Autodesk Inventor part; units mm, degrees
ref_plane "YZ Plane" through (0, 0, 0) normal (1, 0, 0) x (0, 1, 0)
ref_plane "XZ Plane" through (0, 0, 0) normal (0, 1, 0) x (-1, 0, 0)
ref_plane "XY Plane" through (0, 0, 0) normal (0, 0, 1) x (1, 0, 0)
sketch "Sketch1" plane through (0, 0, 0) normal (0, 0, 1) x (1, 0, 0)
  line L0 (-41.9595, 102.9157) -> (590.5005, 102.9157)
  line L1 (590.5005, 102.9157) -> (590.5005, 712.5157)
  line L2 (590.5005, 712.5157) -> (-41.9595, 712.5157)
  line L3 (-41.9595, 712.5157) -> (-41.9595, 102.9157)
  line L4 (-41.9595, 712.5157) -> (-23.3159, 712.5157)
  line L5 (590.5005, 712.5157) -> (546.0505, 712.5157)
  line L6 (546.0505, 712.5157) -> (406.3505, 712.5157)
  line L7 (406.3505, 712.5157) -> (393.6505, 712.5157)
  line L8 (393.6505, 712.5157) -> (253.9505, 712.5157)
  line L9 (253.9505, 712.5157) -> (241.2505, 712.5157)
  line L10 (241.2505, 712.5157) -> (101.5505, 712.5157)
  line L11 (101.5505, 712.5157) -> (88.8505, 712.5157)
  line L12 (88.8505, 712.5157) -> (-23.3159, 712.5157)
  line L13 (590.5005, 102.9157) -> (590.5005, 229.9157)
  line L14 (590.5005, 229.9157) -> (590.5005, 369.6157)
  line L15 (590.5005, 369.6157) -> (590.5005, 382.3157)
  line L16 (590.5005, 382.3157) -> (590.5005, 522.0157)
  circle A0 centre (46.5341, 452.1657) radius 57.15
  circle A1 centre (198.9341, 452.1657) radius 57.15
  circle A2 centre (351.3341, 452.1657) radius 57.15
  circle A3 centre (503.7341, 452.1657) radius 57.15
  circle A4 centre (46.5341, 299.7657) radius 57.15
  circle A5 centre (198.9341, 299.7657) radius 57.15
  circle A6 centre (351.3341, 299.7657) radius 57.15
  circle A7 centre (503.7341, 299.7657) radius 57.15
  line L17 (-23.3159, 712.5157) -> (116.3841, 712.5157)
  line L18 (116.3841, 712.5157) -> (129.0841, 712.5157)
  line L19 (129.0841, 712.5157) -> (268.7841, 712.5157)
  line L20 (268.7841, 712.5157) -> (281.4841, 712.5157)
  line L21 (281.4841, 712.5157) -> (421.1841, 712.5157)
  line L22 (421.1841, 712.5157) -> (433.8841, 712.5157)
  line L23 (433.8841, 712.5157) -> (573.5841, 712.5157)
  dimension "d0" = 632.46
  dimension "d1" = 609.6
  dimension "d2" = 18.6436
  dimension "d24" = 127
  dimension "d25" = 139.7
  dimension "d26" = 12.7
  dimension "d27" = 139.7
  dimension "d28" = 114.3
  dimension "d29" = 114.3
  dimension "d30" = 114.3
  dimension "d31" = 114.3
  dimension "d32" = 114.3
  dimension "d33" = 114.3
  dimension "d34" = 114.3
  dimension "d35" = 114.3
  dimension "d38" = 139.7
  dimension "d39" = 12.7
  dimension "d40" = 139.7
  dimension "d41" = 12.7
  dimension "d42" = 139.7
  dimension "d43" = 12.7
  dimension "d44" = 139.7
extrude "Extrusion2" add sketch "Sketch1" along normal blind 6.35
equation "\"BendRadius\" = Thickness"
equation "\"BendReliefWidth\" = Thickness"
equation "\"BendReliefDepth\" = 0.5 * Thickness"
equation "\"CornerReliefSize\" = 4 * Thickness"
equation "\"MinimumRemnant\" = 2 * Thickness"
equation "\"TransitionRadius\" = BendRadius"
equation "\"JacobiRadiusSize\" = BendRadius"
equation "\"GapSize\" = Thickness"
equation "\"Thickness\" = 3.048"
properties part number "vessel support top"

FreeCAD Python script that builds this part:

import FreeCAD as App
import Part
import Sketcher

V = App.Vector
Q = App.Units.Quantity


def add_polygon(sketch, points):
    """Adds a closed chain of lines whose ends are joined by coincident constraints."""
    first, n = sketch.GeometryCount, len(points)
    for a, b in zip(points, points[1:] + points[:1]):
        sketch.addGeometry(Part.LineSegment(App.Vector(*a, 0), App.Vector(*b, 0)), False)
    for i in range(n):
        sketch.addConstraint(Sketcher.Constraint("Coincident", first + i, 2, first + (i + 1) % n, 1))

doc = App.newDocument("Part")
body = doc.addObject("PartDesign::Body", "Body")

sketch1 = doc.addObject("Sketcher::SketchObject", "Sketch")
body.addObject(sketch1)
sketch1.AttachmentSupport = (doc.XY_Plane, [""])
sketch1.MapMode = "FlatFace"
add_polygon(sketch1, [(-41.9595, 712.5157), (-41.9595, 102.9157), (590.5005, 102.9157), (590.5005, 712.5157)])
sketch1.addGeometry(Part.Circle(V(46.5341, 299.7657, 0), V(0, 0, 1), 57.15), False)
sketch1.addGeometry(Part.Circle(V(198.9341, 299.7657, 0), V(0, 0, 1), 57.15), False)
sketch1.addGeometry(Part.Circle(V(351.3341, 299.7657, 0), V(0, 0, 1), 57.15), False)
sketch1.addGeometry(Part.Circle(V(503.7341, 299.7657, 0), V(0, 0, 1), 57.15), False)
sketch1.addGeometry(Part.Circle(V(46.5341, 452.1657, 0), V(0, 0, 1), 57.15), False)
sketch1.addGeometry(Part.Circle(V(198.9341, 452.1657, 0), V(0, 0, 1), 57.15), False)
sketch1.addGeometry(Part.Circle(V(351.3341, 452.1657, 0), V(0, 0, 1), 57.15), False)
sketch1.addGeometry(Part.Circle(V(503.7341, 452.1657, 0), V(0, 0, 1), 57.15), False)
sketch1.addConstraint(Sketcher.Constraint("Vertical", 0))
sketch1.addConstraint(Sketcher.Constraint("Horizontal", 1))
sketch1.addConstraint(Sketcher.Constraint("Vertical", 2))
sketch1.addConstraint(Sketcher.Constraint("Horizontal", 3))
sketch1.addConstraint(Sketcher.Constraint("Equal", 4, 5))
sketch1.addConstraint(Sketcher.Constraint("Equal", 5, 6))
sketch1.addConstraint(Sketcher.Constraint("Equal", 6, 7))
sketch1.addConstraint(Sketcher.Constraint("Equal", 7, 8))
sketch1.addConstraint(Sketcher.Constraint("Equal", 8, 9))
sketch1.addConstraint(Sketcher.Constraint("Equal", 9, 10))
sketch1.addConstraint(Sketcher.Constraint("Equal", 10, 11))
sketch1.addConstraint(Sketcher.Constraint("Horizontal", 4, 3, 5, 3))
sketch1.addConstraint(Sketcher.Constraint("Horizontal", 5, 3, 6, 3))
sketch1.addConstraint(Sketcher.Constraint("Horizontal", 6, 3, 7, 3))
sketch1.addConstraint(Sketcher.Constraint("Horizontal", 8, 3, 9, 3))
sketch1.addConstraint(Sketcher.Constraint("Horizontal", 9, 3, 10, 3))
sketch1.addConstraint(Sketcher.Constraint("Horizontal", 10, 3, 11, 3))
sketch1.addConstraint(Sketcher.Constraint("Vertical", 4, 3, 8, 3))
sketch1.addConstraint(Sketcher.Constraint("Vertical", 5, 3, 9, 3))
sketch1.addConstraint(Sketcher.Constraint("Vertical", 6, 3, 10, 3))
sketch1.addConstraint(Sketcher.Constraint("Vertical", 7, 3, 11, 3))
sketch1.addConstraint(Sketcher.Constraint("Diameter", 4, Q("4.5 in")))
sketch1.addConstraint(Sketcher.Constraint("DistanceY", 0, 2, 0, 1, Q("24 in")))
sketch1.addConstraint(Sketcher.Constraint("DistanceX", 1, 1, 1, 2, Q("24.9 in")))
sketch1.addConstraint(Sketcher.Constraint("DistanceX", 4, 3, 5, 3, Q("6 in")))
sketch1.addConstraint(Sketcher.Constraint("DistanceX", 5, 3, 6, 3, Q("6 in")))
sketch1.addConstraint(Sketcher.Constraint("DistanceX", 6, 3, 7, 3, Q("6 in")))
sketch1.addConstraint(Sketcher.Constraint("DistanceY", 4, 3, 8, 3, Q("6 in")))
sketch1.addConstraint(Sketcher.Constraint("DistanceY", 0, 2, 4, 3, Q("7.75 in")))
sketch1.addConstraint(Sketcher.Constraint("DistanceX", 0, 2, 4, 3, Q("3.484 in")))
sketch1.addConstraint(Sketcher.Constraint("DistanceY", -1, 1, 4, 3, Q("11.8018 in")))
sketch1.addConstraint(Sketcher.Constraint("DistanceX", -1, 1, 4, 3, 46.534))
pad1 = doc.addObject("PartDesign::Pad", "Pad")
body.addObject(pad1)
pad1.Profile = sketch1
pad1.Length = Q("0.25 in")

doc.recompute()
